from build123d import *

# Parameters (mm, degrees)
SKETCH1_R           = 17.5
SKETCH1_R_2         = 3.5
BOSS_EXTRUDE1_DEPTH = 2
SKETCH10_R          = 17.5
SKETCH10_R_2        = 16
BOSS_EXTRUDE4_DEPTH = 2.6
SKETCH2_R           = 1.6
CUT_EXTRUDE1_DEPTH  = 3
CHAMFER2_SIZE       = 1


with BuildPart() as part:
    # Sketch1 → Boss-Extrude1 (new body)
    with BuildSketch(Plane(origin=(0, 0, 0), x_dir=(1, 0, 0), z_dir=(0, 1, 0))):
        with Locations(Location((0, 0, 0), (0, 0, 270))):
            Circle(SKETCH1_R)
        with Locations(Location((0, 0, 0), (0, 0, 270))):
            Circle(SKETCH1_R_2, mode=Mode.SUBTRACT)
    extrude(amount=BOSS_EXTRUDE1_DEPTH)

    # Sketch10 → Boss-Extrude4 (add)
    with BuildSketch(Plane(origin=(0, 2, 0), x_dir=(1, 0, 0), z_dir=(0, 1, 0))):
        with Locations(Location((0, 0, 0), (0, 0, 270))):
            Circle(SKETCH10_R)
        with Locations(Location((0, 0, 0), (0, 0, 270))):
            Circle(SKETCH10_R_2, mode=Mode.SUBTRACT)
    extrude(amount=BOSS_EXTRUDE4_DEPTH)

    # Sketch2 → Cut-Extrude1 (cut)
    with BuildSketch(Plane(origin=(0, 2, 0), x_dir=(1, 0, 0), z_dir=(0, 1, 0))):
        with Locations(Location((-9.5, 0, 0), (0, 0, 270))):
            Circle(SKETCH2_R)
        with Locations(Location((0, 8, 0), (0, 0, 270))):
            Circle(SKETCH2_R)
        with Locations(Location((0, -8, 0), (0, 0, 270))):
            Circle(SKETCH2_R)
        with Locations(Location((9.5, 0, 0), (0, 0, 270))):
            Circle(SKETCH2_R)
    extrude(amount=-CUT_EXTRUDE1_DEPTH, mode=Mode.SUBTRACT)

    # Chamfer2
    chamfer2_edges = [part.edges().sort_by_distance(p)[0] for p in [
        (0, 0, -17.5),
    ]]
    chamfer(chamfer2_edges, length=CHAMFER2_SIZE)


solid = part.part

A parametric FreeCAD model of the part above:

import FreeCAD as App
import Part
import Sketcher

V = App.Vector
Q = App.Units.Quantity


def edges_at(feature, points):
    """Names of the edges that pass closest to the given points."""
    edges = feature.Shape.Edges
    near = lambda p: min(range(len(edges)), key=lambda i: edges[i].distToShape(Part.Vertex(*p))[0])
    return sorted({f"Edge{near(p) + 1}" for p in points})

doc = App.newDocument("Part")
body = doc.addObject("PartDesign::Body", "Body")

sketch1 = body.newObject("Sketcher::SketchObject", "Sketch")
sketch1.AttachmentSupport = (doc.getObject("XZ_Plane"), [""])
sketch1.MapMode = "FlatFace"
sketch1.addGeometry(Part.Circle(V(0, 0, 0), V(0, 0, 1), 17.5), False)
sketch1.addGeometry(Part.Circle(V(0, 0, 0), V(0, 0, 1), 3.5), False)
sketch1.addConstraint(Sketcher.Constraint("Coincident", 0, 3, -1, 1))
sketch1.addConstraint(Sketcher.Constraint("Coincident", 1, 3, -1, 1))
sketch1.addConstraint(Sketcher.Constraint("Diameter", 0, Q("35 mm")))
sketch1.addConstraint(Sketcher.Constraint("Diameter", 1, Q("7 mm")))
pad1 = body.newObject("PartDesign::Pad", "Pad")
pad1.Profile = sketch1
pad1.Length = 2
pad1.Reversed = True

sketch2 = body.newObject("Sketcher::SketchObject", "Sketch001")
sketch2.AttachmentSupport = (doc.getObject("XZ_Plane"), [""])
sketch2.MapMode = "FlatFace"
sketch2.AttachmentOffset = App.Placement(V(0, 0, -2), App.Rotation())
sketch2.addGeometry(Part.Circle(V(0, 0, 0), V(0, 0, 1), 17.5), False)
sketch2.addGeometry(Part.Circle(V(0, 0, 0), V(0, 0, 1), 16), False)
sketch2.addConstraint(Sketcher.Constraint("Coincident", 0, 3, -1, 1))
sketch2.addConstraint(Sketcher.Constraint("Coincident", 1, 3, -1, 1))
sketch2.addConstraint(Sketcher.Constraint("Diameter", 0, Q("35 mm")))
sketch2.addConstraint(Sketcher.Constraint("Diameter", 1, Q("32 mm")))
pad2 = body.newObject("PartDesign::Pad", "Pad001")
pad2.Profile = sketch2
pad2.Length = 2.6
pad2.Reversed = True

sketch3 = body.newObject("Sketcher::SketchObject", "Sketch002")
sketch3.AttachmentSupport = (doc.getObject("XZ_Plane"), [""])
sketch3.MapMode = "FlatFace"
sketch3.AttachmentOffset = App.Placement(V(0, 0, -2), App.Rotation())
sketch3.addGeometry(Part.Circle(V(-9.5, 0, 0), V(0, 0, 1), 1.6), False)
sketch3.addGeometry(Part.Circle(V(0, -8, 0), V(0, 0, 1), 1.6), False)
sketch3.addGeometry(Part.Circle(V(0, 8, 0), V(0, 0, 1), 1.6), False)
sketch3.addGeometry(Part.Circle(V(9.5, 0, 0), V(0, 0, 1), 1.6), False)
sketch3.addConstraint(Sketcher.Constraint("Equal", 0, 1))
sketch3.addConstraint(Sketcher.Constraint("Equal", 1, 2))
sketch3.addConstraint(Sketcher.Constraint("Equal", 2, 3))
sketch3.addConstraint(Sketcher.Constraint("Symmetric", 1, 3, 2, 3, -1, 1))
sketch3.addConstraint(Sketcher.Constraint("Symmetric", 0, 3, 3, 3, -1, 1))
sketch3.addConstraint(Sketcher.Constraint("PointOnObject", 0, 3, -1))
sketch3.addConstraint(Sketcher.Constraint("PointOnObject", 1, 3, -2))
sketch3.addConstraint(Sketcher.Constraint("Diameter", 0, Q("3.2 mm")))
sketch3.addConstraint(Sketcher.Constraint("DistanceY", 1, 3, -1, 1, Q("8 mm")))
sketch3.addConstraint(Sketcher.Constraint("DistanceX", 0, 3, 3, 3, Q("19 mm")))
pocket1 = body.newObject("PartDesign::Pocket", "Pocket")
pocket1.Profile = sketch3
pocket1.Length = 3
pocket1.Reversed = True
doc.recompute()

chamfer = body.newObject("PartDesign::Chamfer", "Chamfer")
chamfer.Base = (pocket1, edges_at(pocket1, [(0, 0, -17.5)]))
chamfer.Size = 1

doc.recompute()
